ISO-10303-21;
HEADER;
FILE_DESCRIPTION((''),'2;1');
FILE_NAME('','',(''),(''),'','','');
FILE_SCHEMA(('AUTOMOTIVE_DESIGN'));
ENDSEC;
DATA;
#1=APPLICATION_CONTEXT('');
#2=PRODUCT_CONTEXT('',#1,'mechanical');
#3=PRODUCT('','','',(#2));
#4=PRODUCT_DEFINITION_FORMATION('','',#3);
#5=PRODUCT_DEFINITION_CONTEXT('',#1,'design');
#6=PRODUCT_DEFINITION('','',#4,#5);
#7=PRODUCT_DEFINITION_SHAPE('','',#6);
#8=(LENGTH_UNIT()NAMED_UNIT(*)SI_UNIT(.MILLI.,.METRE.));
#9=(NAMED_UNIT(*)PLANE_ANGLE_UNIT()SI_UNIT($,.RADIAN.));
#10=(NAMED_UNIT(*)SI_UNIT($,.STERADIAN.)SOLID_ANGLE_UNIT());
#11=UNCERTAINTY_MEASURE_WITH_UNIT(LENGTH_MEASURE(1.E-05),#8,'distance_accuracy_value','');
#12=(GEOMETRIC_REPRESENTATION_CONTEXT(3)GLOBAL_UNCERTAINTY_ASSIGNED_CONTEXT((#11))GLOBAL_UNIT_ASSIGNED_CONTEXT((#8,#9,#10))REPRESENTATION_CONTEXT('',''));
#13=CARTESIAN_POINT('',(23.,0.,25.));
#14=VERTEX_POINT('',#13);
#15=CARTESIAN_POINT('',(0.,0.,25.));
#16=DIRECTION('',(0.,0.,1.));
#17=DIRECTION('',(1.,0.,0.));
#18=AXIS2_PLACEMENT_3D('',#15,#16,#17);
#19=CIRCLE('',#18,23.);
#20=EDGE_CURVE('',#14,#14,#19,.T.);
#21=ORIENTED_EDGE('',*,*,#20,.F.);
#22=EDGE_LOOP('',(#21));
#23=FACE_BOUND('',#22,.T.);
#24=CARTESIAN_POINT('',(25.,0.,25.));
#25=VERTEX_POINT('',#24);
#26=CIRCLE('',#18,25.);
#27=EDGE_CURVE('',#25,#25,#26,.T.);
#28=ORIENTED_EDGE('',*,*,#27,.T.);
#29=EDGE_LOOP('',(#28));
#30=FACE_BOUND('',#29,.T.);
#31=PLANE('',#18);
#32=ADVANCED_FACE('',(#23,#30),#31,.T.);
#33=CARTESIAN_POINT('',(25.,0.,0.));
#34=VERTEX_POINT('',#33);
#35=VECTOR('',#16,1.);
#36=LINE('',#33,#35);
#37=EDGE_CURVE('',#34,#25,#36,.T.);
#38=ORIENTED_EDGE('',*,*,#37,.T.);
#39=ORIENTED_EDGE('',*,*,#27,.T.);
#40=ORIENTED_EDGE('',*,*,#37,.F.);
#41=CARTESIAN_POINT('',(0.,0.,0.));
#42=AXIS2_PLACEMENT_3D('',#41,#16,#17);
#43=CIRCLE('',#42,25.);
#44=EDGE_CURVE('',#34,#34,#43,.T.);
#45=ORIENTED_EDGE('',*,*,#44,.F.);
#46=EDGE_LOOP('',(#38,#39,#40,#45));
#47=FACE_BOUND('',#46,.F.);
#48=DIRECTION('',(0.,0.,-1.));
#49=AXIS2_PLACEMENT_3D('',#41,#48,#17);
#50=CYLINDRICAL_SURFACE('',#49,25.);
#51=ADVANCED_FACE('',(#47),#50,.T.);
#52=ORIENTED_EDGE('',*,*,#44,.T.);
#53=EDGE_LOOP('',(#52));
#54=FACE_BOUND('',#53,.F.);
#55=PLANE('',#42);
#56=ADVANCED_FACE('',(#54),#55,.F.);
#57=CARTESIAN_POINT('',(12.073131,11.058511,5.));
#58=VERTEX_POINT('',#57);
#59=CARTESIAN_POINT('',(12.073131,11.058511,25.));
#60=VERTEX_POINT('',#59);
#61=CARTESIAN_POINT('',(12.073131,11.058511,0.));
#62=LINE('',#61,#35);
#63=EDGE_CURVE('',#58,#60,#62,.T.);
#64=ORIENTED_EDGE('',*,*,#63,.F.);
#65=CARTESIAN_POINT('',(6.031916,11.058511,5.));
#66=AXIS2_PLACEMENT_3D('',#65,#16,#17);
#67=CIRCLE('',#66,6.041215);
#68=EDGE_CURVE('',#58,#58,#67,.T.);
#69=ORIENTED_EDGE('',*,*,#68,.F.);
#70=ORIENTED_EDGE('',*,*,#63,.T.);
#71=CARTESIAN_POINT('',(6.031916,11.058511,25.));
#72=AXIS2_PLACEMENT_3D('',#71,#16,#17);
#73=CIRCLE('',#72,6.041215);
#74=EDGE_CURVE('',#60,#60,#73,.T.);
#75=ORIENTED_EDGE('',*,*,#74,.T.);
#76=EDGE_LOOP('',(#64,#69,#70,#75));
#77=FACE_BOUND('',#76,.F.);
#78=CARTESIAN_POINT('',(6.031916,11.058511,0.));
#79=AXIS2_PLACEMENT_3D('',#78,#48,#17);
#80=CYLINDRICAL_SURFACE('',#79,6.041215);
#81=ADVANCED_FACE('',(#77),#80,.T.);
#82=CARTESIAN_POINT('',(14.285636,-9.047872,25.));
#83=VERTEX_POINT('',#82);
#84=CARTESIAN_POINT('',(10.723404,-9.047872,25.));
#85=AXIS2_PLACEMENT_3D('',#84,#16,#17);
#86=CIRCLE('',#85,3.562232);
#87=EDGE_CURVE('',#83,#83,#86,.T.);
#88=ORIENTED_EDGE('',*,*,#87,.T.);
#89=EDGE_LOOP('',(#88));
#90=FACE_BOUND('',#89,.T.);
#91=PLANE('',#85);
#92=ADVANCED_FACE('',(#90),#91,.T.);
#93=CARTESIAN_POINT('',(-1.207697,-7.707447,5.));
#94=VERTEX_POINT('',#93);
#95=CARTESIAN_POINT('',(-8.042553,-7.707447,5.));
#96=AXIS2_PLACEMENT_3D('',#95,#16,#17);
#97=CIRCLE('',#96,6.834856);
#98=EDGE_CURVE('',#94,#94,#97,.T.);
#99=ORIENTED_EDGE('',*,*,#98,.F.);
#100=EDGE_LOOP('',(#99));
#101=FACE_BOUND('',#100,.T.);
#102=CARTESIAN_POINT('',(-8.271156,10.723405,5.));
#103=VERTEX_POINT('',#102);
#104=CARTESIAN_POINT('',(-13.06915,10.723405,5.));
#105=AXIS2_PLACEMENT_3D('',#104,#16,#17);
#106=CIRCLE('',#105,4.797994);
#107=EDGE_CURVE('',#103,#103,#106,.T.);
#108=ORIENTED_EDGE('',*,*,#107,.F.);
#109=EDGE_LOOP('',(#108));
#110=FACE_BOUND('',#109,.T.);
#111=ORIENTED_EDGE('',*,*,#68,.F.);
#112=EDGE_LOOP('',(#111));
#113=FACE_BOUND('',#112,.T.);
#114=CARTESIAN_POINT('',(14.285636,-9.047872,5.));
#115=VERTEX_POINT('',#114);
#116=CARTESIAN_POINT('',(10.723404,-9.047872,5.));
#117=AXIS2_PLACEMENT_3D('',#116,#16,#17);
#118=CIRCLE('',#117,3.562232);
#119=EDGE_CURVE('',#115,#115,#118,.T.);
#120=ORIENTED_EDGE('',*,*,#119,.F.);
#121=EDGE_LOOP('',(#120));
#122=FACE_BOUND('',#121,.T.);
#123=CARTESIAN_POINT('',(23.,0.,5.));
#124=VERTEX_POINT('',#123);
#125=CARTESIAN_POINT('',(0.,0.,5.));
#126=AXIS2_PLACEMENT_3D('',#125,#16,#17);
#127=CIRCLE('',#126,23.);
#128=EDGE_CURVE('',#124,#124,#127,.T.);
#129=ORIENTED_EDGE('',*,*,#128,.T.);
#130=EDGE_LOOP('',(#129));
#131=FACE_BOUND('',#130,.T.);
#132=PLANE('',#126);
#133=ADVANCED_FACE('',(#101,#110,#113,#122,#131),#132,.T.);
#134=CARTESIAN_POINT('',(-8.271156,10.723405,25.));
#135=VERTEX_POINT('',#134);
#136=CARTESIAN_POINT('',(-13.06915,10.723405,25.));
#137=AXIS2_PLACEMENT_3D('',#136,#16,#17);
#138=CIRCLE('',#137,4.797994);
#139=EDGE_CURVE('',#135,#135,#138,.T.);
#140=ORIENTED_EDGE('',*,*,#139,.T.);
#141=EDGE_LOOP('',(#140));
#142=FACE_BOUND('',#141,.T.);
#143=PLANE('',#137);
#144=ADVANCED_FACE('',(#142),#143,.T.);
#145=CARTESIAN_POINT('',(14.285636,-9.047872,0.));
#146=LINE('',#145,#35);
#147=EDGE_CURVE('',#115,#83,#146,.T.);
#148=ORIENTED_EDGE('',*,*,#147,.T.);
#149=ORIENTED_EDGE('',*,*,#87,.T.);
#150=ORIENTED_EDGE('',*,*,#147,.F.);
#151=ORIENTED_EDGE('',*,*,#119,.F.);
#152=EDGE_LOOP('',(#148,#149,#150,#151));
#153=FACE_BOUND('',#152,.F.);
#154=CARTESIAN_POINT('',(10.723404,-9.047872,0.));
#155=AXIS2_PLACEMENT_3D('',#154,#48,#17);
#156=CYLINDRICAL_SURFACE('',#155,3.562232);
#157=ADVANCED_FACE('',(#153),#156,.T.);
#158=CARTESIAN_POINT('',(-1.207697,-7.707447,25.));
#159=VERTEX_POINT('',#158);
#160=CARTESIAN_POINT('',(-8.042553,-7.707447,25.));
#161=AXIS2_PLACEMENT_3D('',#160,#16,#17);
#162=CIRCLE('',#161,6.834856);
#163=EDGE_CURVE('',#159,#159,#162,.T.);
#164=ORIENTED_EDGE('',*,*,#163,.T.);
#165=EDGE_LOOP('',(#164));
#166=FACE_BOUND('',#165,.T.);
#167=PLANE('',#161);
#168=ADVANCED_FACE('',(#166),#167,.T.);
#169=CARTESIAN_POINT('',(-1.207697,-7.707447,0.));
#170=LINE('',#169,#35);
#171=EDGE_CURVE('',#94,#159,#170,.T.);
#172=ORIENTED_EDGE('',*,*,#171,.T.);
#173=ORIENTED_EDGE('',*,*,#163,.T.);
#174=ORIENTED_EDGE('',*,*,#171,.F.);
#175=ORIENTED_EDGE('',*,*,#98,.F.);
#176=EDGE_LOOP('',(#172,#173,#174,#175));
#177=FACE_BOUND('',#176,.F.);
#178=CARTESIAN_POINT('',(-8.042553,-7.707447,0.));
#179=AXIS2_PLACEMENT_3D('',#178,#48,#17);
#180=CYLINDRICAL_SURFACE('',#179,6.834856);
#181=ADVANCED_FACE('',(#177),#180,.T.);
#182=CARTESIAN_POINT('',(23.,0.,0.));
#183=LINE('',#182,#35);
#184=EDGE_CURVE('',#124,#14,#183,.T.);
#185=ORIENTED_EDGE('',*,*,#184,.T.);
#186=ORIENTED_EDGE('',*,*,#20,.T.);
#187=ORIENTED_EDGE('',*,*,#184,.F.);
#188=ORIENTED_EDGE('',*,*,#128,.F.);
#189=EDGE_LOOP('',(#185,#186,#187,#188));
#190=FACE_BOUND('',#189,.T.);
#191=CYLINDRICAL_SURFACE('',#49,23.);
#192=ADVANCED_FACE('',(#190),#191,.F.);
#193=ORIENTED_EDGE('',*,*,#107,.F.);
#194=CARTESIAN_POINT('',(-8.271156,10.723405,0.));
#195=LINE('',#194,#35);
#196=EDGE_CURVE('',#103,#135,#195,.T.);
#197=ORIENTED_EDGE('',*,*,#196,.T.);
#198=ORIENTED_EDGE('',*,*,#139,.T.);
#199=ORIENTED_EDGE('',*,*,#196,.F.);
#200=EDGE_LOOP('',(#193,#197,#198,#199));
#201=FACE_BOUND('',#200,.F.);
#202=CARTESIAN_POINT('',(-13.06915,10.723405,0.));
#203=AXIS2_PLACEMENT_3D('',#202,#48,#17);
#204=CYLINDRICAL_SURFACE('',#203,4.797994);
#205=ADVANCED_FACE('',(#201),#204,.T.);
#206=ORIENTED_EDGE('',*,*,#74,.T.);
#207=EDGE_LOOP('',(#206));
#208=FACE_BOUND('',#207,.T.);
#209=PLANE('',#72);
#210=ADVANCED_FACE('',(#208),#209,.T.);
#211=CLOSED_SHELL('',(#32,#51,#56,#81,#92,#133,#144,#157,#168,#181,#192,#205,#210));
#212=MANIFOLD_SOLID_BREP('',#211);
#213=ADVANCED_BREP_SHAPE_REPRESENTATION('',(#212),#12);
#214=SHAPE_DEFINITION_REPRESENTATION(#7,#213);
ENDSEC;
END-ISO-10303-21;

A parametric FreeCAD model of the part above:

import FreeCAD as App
import Part
import Sketcher
from FreeCAD import Vector
Q = App.Units.Quantity

doc = App.newDocument("Part")
body = doc.addObject("PartDesign::Body", "Body")

# Sketch on XY plane
sketch1 = body.newObject("Sketcher::SketchObject", "Sketch")
sketch1.AttachmentSupport = (doc.getObject("XY_Plane"), [""])
sketch1.MapMode = "FlatFace"
sketch1.addGeometry(Part.Circle(Vector(0, 0, 0), Vector(0, 0, 1), 25), False)
sketch1.addGeometry(Part.Circle(Vector(0, 0, 0), Vector(0, 0, 1), 23), False)
sketch1.addConstraint(Sketcher.Constraint("Coincident", 0, 3, -1, 1))
sketch1.addConstraint(Sketcher.Constraint("Coincident", 1, 3, -1, 1))
sketch1.addConstraint(Sketcher.Constraint("Diameter", 0, Q("50 mm")))
sketch1.addConstraint(Sketcher.Constraint("Diameter", 1, Q("46 mm")))
pad1 = body.newObject("PartDesign::Pad", "Pad")
pad1.Profile = sketch1
pad1.Length = 25

# Sketch on XY plane
sketch2 = body.newObject("Sketcher::SketchObject", "Sketch001")
sketch2.AttachmentSupport = (doc.getObject("XY_Plane"), [""])
sketch2.MapMode = "FlatFace"
sketch2.addGeometry(Part.Circle(Vector(0, 0, 0), Vector(0, 0, 1), 23), False)
sketch2.addGeometry(Part.Circle(Vector(-8, -7.7, 0), Vector(0, 0, 1), 6.8), False)
sketch2.addGeometry(Part.Circle(Vector(10.7, -9, 0), Vector(0, 0, 1), 3.6), False)
sketch2.addGeometry(Part.Circle(Vector(-13.1, 10.7, 0), Vector(0, 0, 1), 4.8), False)
sketch2.addGeometry(Part.Circle(Vector(6, 11.1, 0), Vector(0, 0, 1), 6), False)
sketch2.addConstraint(Sketcher.Constraint("Coincident", 0, 3, -1, 1))
sketch2.addConstraint(Sketcher.Constraint("Diameter", 0, Q("46 mm")))
sketch2.addConstraint(Sketcher.Constraint("Diameter", 4, Q("12.08243 mm")))
sketch2.addConstraint(Sketcher.Constraint("Diameter", 1, Q("13.669712 mm")))
sketch2.addConstraint(Sketcher.Constraint("Diameter", 2, Q("7.124464 mm")))
sketch2.addConstraint(Sketcher.Constraint("Diameter", 3, Q("9.595988 mm")))
sketch2.addConstraint(Sketcher.Constraint("DistanceX", 3, 3, -1, 1, Q("13.06915 mm")))
sketch2.addConstraint(Sketcher.Constraint("DistanceY", -1, 1, 4, 3, Q("11.058511 mm")))
sketch2.addConstraint(Sketcher.Constraint("DistanceX", 4, 3, 2, 3, Q("4.691488 mm")))
sketch2.addConstraint(Sketcher.Constraint("DistanceX", 1, 3, 4, 3, Q("14.074469 mm")))
sketch2.addConstraint(Sketcher.Constraint("DistanceX", 1, 3, -1, 1, Q("8.042553 mm")))
sketch2.addConstraint(Sketcher.Constraint("DistanceY", 1, 3, -1, 1, Q("7.707447 mm")))
sketch2.addConstraint(Sketcher.Constraint("DistanceY", 2, 3, -1, 1, Q("9.047872 mm")))
sketch2.addConstraint(Sketcher.Constraint("DistanceY", -1, 1, 3, 3, Q("10.723405 mm")))
pad2 = body.newObject("PartDesign::Pad", "Pad001")
pad2.Profile = sketch2
pad2.Length = 5

# Sketch on XY plane
sketch3 = body.newObject("Sketcher::SketchObject", "Sketch002")
sketch3.AttachmentSupport = (doc.getObject("XY_Plane"), [""])
sketch3.MapMode = "FlatFace"
sketch3.addGeometry(Part.Circle(Vector(-8, -7.7, 0), Vector(0, 0, 1), 6.8), False)
sketch3.addGeometry(Part.Circle(Vector(6, 11.1, 0), Vector(0, 0, 1), 6), False)
sketch3.addGeometry(Part.Circle(Vector(-13.1, 10.7, 0), Vector(0, 0, 1), 4.8), False)
sketch3.addGeometry(Part.Circle(Vector(10.7, -9, 0), Vector(0, 0, 1), 3.6), False)
sketch3.addConstraint(Sketcher.Constraint("Diameter", 1, Q("12.08243 mm")))
sketch3.addConstraint(Sketcher.Constraint("Diameter", 0, Q("13.669712 mm")))
sketch3.addConstraint(Sketcher.Constraint("Diameter", 2, Q("9.595988 mm")))
sketch3.addConstraint(Sketcher.Constraint("Diameter", 3, Q("7.124464 mm")))
sketch3.addConstraint(Sketcher.Constraint("DistanceY", -1, 1, 1, 3, Q("11.058511 mm")))
sketch3.addConstraint(Sketcher.Constraint("DistanceX", 2, 3, -1, 1, Q("13.06915 mm")))
sketch3.addConstraint(Sketcher.Constraint("DistanceX", 0, 3, 1, 3, Q("14.074469 mm")))
sketch3.addConstraint(Sketcher.Constraint("DistanceX", 1, 3, 3, 3, Q("4.691488 mm")))
sketch3.addConstraint(Sketcher.Constraint("DistanceX", 0, 3, -1, 1, Q("8.042553 mm")))
sketch3.addConstraint(Sketcher.Constraint("DistanceY", 0, 3, -1, 1, Q("7.707447 mm")))
sketch3.addConstraint(Sketcher.Constraint("DistanceY", -1, 1, 2, 3, Q("10.723405 mm")))
sketch3.addConstraint(Sketcher.Constraint("DistanceY", 3, 3, -1, 1, Q("9.047872 mm")))
pad3 = body.newObject("PartDesign::Pad", "Pad002")
pad3.Profile = sketch3
pad3.Length = 25

doc.recompute()
